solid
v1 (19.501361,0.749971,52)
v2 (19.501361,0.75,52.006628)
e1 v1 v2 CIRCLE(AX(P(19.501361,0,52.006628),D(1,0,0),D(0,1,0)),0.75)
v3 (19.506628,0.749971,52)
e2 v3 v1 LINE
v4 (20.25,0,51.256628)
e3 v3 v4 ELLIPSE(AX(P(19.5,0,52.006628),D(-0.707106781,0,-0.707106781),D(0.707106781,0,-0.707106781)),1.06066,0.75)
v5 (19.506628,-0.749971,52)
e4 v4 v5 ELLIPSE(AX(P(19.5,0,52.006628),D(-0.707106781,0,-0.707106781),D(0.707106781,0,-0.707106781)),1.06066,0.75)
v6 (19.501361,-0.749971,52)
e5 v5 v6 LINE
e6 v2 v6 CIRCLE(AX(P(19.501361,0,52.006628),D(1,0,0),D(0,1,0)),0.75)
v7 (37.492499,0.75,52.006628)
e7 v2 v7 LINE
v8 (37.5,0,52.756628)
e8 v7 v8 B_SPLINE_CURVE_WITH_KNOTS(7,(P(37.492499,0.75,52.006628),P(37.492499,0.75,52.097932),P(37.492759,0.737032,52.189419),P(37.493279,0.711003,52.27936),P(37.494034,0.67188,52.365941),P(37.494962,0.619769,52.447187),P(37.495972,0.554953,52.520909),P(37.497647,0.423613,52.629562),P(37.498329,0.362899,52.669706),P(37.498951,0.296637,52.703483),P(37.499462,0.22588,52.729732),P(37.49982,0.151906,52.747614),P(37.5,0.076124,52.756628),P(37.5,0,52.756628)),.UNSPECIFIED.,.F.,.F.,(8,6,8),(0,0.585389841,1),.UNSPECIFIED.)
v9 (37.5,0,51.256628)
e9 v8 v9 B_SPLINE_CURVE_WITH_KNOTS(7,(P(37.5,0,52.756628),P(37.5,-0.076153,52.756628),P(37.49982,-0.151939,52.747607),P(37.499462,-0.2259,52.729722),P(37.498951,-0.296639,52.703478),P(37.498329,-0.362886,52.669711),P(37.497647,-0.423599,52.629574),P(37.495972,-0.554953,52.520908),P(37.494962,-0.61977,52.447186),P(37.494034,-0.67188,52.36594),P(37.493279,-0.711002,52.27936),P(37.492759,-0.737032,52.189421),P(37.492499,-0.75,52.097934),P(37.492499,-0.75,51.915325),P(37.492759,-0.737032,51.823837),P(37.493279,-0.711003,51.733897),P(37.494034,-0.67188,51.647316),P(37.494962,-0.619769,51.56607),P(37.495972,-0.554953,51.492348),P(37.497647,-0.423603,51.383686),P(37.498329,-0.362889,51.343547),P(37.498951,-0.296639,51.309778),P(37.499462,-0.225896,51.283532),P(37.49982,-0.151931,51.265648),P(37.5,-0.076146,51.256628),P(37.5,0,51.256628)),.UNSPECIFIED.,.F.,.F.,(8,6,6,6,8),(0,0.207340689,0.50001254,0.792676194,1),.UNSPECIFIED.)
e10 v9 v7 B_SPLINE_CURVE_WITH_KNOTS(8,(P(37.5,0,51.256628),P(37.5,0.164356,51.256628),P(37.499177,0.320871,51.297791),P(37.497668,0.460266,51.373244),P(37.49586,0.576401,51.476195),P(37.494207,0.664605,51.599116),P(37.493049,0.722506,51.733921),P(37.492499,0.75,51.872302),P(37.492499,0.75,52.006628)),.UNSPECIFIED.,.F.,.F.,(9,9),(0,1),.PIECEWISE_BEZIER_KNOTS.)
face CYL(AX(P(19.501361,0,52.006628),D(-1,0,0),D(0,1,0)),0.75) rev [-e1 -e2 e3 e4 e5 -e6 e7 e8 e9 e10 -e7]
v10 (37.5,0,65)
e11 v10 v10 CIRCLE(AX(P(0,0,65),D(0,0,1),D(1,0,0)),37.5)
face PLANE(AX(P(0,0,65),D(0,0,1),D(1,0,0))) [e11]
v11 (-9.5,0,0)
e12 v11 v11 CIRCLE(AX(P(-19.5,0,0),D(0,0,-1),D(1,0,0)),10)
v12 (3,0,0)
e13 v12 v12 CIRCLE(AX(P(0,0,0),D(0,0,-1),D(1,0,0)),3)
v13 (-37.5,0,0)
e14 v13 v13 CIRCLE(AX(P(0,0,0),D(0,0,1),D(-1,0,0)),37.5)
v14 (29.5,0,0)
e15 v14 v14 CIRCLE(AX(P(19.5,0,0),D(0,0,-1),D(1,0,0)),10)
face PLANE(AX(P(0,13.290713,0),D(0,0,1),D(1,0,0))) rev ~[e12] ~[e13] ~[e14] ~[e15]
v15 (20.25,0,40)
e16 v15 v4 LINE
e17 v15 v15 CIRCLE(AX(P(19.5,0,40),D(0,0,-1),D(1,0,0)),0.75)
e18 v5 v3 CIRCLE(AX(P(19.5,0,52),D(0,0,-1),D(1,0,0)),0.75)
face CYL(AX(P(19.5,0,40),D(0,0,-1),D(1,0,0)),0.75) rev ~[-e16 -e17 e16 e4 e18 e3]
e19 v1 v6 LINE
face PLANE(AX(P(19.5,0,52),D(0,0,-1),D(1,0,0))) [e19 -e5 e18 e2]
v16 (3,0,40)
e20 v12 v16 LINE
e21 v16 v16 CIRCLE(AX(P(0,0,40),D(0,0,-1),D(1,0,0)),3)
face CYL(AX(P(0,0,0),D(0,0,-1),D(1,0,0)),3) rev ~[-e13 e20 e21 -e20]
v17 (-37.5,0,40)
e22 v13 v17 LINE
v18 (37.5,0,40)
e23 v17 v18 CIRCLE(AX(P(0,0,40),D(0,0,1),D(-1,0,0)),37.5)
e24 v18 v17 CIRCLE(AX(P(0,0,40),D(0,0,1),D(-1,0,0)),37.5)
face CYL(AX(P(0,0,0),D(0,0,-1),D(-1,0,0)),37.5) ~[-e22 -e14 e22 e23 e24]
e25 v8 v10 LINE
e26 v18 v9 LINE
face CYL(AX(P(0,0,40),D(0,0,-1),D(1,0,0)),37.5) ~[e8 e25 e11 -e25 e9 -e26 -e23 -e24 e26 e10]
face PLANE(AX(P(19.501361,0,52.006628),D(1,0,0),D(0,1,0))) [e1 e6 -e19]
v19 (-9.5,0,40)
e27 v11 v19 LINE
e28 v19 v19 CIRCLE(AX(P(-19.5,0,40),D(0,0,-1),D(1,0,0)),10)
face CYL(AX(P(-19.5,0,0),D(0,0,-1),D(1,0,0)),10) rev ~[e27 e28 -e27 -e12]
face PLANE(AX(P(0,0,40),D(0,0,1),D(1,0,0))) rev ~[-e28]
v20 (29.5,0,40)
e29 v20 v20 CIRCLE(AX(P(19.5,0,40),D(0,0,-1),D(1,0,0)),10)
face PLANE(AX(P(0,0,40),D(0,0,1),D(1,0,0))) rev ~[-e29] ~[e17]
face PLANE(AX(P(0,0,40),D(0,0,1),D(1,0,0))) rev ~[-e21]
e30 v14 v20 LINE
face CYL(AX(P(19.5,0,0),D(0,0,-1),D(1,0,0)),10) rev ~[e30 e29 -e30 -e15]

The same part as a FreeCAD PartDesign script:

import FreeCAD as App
import Part
import Sketcher

V = App.Vector

doc = App.newDocument("Part")
body = doc.addObject("PartDesign::Body", "Body")

sketch1 = body.newObject("Sketcher::SketchObject", "Sketch")
sketch1.AttachmentSupport = (doc.getObject("XY_Plane"), [""])
sketch1.MapMode = "FlatFace"
sketch1.addGeometry([
    Part.Circle(V(0, 0, 0), V(0, 0, 1), 37.5),
    Part.Circle(V(-19.5, 0, 0), V(0, 0, 1), 10),
    Part.Circle(V(0, 0, 0), V(0, 0, 1), 3),
    Part.Circle(V(19.5, 0, 0), V(0, 0, 1), 10),
], False)
sketch1.addConstraint([
    Sketcher.Constraint("Coincident", 0, 3, -1, 1),
    Sketcher.Constraint("Coincident", 2, 3, -1, 1),
    Sketcher.Constraint("Equal", 1, 3),
    Sketcher.Constraint("Symmetric", 1, 3, 3, 3, -1, 1),
    Sketcher.Constraint("PointOnObject", 1, 3, -1),
    Sketcher.Constraint("Diameter", 0, 75.0),
    Sketcher.Constraint("Diameter", 1, 20.0),
    Sketcher.Constraint("Diameter", 2, 6.0),
    Sketcher.Constraint("DistanceX", 1, 3, 3, 3, 39.0),
])
pad1 = body.newObject("PartDesign::Pad", "Pad")
pad1.Profile = sketch1
pad1.Length = 40

sketch2 = body.newObject("Sketcher::SketchObject", "Sketch001")
sketch2.AttachmentSupport = (doc.getObject("XY_Plane"), [""])
sketch2.MapMode = "FlatFace"
sketch2.AttachmentOffset = App.Placement(V(0, 0, 40), App.Rotation())
sketch2.addGeometry(Part.Circle(V(0, 0, 0), V(0, 0, 1), 38), False)
sketch2.addConstraint([
    Sketcher.Constraint("Coincident", 0, 3, -1, 1),
    Sketcher.Constraint("Diameter", 0, 75.0),
])
pad2 = body.newObject("PartDesign::Pad", "Pad001")
pad2.Profile = sketch2
pad2.Length = 25

sketch3 = body.newObject("Sketcher::SketchObject", "Sketch002")
sketch3.AttachmentSupport = (doc.getObject("XY_Plane"), [""])
sketch3.MapMode = "FlatFace"
sketch3.AttachmentOffset = App.Placement(V(0, 0, 40), App.Rotation())
sketch3.addGeometry(Part.Circle(V(19.5, 0, 0), V(0, 0, 1), 0.8), False)
sketch3.addConstraint([
    Sketcher.Constraint("PointOnObject", 0, 3, -1),
    Sketcher.Constraint("Diameter", 0, 1.5),
    Sketcher.Constraint("DistanceX", -1, 1, 0, 3, 19.5),
])
pocket1 = body.newObject("PartDesign::Pocket", "Pocket")
pocket1.Profile = sketch3
pocket1.Length = 12
pocket1.Reversed = True

sketch4 = body.newObject("Sketcher::SketchObject", "Sketch003")
sketch4.AttachmentSupport = (doc.getObject("YZ_Plane"), [""])
sketch4.MapMode = "FlatFace"
sketch4.AttachmentOffset = App.Placement(V(0, 0, 19.501361), App.Rotation())
sketch4.addGeometry(Part.Circle(V(0, 52, 0), V(0, 0, 1), 0.8), False)
sketch4.addConstraint([
    Sketcher.Constraint("PointOnObject", 0, 3, -2),
    Sketcher.Constraint("Diameter", 0, 1.5),
    Sketcher.Constraint("DistanceY", -1, 1, 0, 3, 52.006628),
])
pocket2 = body.newObject("PartDesign::Pocket", "Pocket001")
pocket2.Profile = sketch4
pocket2.Type = "ThroughAll"
pocket2.Reversed = True

doc.recompute()
